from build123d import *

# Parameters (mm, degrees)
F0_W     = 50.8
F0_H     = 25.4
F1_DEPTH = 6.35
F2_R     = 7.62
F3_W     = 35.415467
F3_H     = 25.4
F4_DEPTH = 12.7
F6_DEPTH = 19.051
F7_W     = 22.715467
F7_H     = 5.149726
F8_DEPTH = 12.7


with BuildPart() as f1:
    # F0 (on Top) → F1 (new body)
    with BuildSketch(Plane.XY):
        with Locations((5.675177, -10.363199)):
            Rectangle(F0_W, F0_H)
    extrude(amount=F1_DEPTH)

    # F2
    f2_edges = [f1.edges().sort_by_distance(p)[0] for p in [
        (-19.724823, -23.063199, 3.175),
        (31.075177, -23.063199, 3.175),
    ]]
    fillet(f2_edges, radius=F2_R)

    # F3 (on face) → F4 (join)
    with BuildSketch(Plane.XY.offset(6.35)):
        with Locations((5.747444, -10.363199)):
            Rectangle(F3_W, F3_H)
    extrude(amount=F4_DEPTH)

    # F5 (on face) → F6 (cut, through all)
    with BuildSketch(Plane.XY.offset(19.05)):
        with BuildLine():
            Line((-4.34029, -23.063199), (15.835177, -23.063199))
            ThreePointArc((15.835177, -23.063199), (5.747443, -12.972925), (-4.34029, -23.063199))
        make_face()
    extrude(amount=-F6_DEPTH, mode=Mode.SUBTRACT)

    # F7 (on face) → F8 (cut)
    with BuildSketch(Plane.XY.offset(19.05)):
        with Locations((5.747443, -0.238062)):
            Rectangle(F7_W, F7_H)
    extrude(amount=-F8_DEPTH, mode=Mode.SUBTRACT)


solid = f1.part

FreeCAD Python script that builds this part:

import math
import FreeCAD as App
import Part
import Sketcher
Q = App.Units.Quantity


def edges_at(feature, points):
    """Names of the edges that pass closest to the given points."""
    edges = feature.Shape.Edges
    near = lambda p: min(range(len(edges)), key=lambda i: edges[i].distToShape(Part.Vertex(*p))[0])
    return sorted({f"Edge{near(p) + 1}" for p in points})


def add_polygon(sketch, points):
    """Adds a closed chain of lines whose ends are joined by coincident constraints."""
    first, n = sketch.GeometryCount, len(points)
    for a, b in zip(points, points[1:] + points[:1]):
        sketch.addGeometry(Part.LineSegment(App.Vector(*a, 0), App.Vector(*b, 0)), False)
    for i in range(n):
        sketch.addConstraint(Sketcher.Constraint("Coincident", first + i, 2, first + (i + 1) % n, 1))

doc = App.newDocument("Part")
body = doc.addObject("PartDesign::Body", "Body")

# Sketch on XY plane
sketch1 = body.newObject("Sketcher::SketchObject", "Sketch")
sketch1.AttachmentSupport = (doc.getObject("XY_Plane"), [""])
sketch1.MapMode = "FlatFace"
add_polygon(sketch1, [(-20, 2), (-20, -23), (31, -23), (31, 2)])  # lines 0-3
sketch1.addConstraint([
    Sketcher.Constraint("Vertical", 0),
    Sketcher.Constraint("Horizontal", 1),
    Sketcher.Constraint("Vertical", 2),
    Sketcher.Constraint("Horizontal", 3),
    Sketcher.Constraint("DistanceX", 1, 1, 1, 2, Q("2 in")),
    Sketcher.Constraint("DistanceY", 0, 2, 0, 1, Q("1 in")),
    Sketcher.Constraint("DistanceY", 0, 2, -1, 1, Q("0.908 in")),
    Sketcher.Constraint("DistanceX", 0, 2, -1, 1, Q("19.724823 mm")),
])
pad1 = body.newObject("PartDesign::Pad", "Pad")
pad1.Profile = sketch1
pad1.Length = Q("0.25 in")
doc.recompute()

fillet = body.newObject("PartDesign::Fillet", "Fillet")
fillet.Base = (pad1, edges_at(pad1, [(-19.725, -23.063, 3.175), (31.075, -23.063, 3.175)]))
fillet.Radius = Q("0.3 in")

# Sketch on XY plane
sketch2 = body.newObject("Sketcher::SketchObject", "Sketch001")
sketch2.AttachmentSupport = (doc.getObject("XY_Plane"), [""])
sketch2.MapMode = "FlatFace"
sketch2.AttachmentOffset = App.Placement(App.Vector(0, 0, 0.25 * 25.4), App.Rotation())
add_polygon(sketch2, [(-12, 2), (-12, -23), (23, -23), (23, 2)])  # lines 0-3
sketch2.addConstraint([
    Sketcher.Constraint("Vertical", 0),
    Sketcher.Constraint("Horizontal", 1),
    Sketcher.Constraint("Vertical", 2),
    Sketcher.Constraint("Horizontal", 3),
    Sketcher.Constraint("DistanceY", 0, 2, 0, 1, Q("1 in")),
    Sketcher.Constraint("DistanceY", 0, 2, -1, 1, Q("0.908 in")),
    Sketcher.Constraint("DistanceX", 1, 1, 1, 2, Q("35.415467 mm")),
    Sketcher.Constraint("DistanceX", 0, 2, -1, 1, Q("11.96029 mm")),
])
pad2 = body.newObject("PartDesign::Pad", "Pad001")
pad2.Profile = sketch2
pad2.Length = Q("0.5 in")

# Sketch on XY plane
sketch3 = body.newObject("Sketcher::SketchObject", "Sketch002")
sketch3.AttachmentSupport = (doc.getObject("XY_Plane"), [""])
sketch3.MapMode = "FlatFace"
sketch3.AttachmentOffset = App.Placement(App.Vector(0, 0, 0.75 * 25.4), App.Rotation())
sketch3.addGeometry([
    Part.LineSegment(App.Vector(-4, -23, 0), App.Vector(16, -23, 0)),
    Part.ArcOfCircle(Part.Circle(App.Vector(6, -23, 0), App.Vector(0, 0, 1), 10), math.radians(0), math.radians(180)),
], False)
sketch3.addConstraint([
    Sketcher.Constraint("Coincident", 0, 1, 1, 2),
    Sketcher.Constraint("Coincident", 1, 1, 0, 2),
    Sketcher.Constraint("Horizontal", 0),
    Sketcher.Constraint("DistanceY", 0, 1, -1, 1, Q("0.908 in")),
    Sketcher.Constraint("DistanceY", 1, 3, -1, 1, Q("0.9079 in")),
    Sketcher.Constraint("Radius", 1, Q("10.087734 mm")),
    Sketcher.Constraint("DistanceX", 0, 1, -1, 1, Q("4.34029 mm")),
])
pocket1 = body.newObject("PartDesign::Pocket", "Pocket")
pocket1.Profile = sketch3
pocket1.Type = "ThroughAll"

# Sketch on XY plane
sketch4 = body.newObject("Sketcher::SketchObject", "Sketch003")
sketch4.AttachmentSupport = (doc.getObject("XY_Plane"), [""])
sketch4.MapMode = "FlatFace"
sketch4.AttachmentOffset = App.Placement(App.Vector(0, 0, 0.75 * 25.4), App.Rotation())
add_polygon(sketch4, [(-6, 2), (-6, -3), (17, -3), (17, 2)])  # lines 0-3
sketch4.addConstraint([
    Sketcher.Constraint("Vertical", 0),
    Sketcher.Constraint("Horizontal", 1),
    Sketcher.Constraint("Vertical", 2),
    Sketcher.Constraint("Horizontal", 3),
    Sketcher.Constraint("DistanceY", -1, 1, 2, 2, Q("0.092 in")),
    Sketcher.Constraint("DistanceX", 1, 1, 1, 2, Q("22.715467 mm")),
    Sketcher.Constraint("DistanceY", 0, 2, 0, 1, Q("5.149726 mm")),
    Sketcher.Constraint("DistanceX", 0, 2, -1, 1, Q("5.61029 mm")),
])
pocket2 = body.newObject("PartDesign::Pocket", "Pocket001")
pocket2.Profile = sketch4
pocket2.Length = Q("0.5 in")

doc.recompute()
